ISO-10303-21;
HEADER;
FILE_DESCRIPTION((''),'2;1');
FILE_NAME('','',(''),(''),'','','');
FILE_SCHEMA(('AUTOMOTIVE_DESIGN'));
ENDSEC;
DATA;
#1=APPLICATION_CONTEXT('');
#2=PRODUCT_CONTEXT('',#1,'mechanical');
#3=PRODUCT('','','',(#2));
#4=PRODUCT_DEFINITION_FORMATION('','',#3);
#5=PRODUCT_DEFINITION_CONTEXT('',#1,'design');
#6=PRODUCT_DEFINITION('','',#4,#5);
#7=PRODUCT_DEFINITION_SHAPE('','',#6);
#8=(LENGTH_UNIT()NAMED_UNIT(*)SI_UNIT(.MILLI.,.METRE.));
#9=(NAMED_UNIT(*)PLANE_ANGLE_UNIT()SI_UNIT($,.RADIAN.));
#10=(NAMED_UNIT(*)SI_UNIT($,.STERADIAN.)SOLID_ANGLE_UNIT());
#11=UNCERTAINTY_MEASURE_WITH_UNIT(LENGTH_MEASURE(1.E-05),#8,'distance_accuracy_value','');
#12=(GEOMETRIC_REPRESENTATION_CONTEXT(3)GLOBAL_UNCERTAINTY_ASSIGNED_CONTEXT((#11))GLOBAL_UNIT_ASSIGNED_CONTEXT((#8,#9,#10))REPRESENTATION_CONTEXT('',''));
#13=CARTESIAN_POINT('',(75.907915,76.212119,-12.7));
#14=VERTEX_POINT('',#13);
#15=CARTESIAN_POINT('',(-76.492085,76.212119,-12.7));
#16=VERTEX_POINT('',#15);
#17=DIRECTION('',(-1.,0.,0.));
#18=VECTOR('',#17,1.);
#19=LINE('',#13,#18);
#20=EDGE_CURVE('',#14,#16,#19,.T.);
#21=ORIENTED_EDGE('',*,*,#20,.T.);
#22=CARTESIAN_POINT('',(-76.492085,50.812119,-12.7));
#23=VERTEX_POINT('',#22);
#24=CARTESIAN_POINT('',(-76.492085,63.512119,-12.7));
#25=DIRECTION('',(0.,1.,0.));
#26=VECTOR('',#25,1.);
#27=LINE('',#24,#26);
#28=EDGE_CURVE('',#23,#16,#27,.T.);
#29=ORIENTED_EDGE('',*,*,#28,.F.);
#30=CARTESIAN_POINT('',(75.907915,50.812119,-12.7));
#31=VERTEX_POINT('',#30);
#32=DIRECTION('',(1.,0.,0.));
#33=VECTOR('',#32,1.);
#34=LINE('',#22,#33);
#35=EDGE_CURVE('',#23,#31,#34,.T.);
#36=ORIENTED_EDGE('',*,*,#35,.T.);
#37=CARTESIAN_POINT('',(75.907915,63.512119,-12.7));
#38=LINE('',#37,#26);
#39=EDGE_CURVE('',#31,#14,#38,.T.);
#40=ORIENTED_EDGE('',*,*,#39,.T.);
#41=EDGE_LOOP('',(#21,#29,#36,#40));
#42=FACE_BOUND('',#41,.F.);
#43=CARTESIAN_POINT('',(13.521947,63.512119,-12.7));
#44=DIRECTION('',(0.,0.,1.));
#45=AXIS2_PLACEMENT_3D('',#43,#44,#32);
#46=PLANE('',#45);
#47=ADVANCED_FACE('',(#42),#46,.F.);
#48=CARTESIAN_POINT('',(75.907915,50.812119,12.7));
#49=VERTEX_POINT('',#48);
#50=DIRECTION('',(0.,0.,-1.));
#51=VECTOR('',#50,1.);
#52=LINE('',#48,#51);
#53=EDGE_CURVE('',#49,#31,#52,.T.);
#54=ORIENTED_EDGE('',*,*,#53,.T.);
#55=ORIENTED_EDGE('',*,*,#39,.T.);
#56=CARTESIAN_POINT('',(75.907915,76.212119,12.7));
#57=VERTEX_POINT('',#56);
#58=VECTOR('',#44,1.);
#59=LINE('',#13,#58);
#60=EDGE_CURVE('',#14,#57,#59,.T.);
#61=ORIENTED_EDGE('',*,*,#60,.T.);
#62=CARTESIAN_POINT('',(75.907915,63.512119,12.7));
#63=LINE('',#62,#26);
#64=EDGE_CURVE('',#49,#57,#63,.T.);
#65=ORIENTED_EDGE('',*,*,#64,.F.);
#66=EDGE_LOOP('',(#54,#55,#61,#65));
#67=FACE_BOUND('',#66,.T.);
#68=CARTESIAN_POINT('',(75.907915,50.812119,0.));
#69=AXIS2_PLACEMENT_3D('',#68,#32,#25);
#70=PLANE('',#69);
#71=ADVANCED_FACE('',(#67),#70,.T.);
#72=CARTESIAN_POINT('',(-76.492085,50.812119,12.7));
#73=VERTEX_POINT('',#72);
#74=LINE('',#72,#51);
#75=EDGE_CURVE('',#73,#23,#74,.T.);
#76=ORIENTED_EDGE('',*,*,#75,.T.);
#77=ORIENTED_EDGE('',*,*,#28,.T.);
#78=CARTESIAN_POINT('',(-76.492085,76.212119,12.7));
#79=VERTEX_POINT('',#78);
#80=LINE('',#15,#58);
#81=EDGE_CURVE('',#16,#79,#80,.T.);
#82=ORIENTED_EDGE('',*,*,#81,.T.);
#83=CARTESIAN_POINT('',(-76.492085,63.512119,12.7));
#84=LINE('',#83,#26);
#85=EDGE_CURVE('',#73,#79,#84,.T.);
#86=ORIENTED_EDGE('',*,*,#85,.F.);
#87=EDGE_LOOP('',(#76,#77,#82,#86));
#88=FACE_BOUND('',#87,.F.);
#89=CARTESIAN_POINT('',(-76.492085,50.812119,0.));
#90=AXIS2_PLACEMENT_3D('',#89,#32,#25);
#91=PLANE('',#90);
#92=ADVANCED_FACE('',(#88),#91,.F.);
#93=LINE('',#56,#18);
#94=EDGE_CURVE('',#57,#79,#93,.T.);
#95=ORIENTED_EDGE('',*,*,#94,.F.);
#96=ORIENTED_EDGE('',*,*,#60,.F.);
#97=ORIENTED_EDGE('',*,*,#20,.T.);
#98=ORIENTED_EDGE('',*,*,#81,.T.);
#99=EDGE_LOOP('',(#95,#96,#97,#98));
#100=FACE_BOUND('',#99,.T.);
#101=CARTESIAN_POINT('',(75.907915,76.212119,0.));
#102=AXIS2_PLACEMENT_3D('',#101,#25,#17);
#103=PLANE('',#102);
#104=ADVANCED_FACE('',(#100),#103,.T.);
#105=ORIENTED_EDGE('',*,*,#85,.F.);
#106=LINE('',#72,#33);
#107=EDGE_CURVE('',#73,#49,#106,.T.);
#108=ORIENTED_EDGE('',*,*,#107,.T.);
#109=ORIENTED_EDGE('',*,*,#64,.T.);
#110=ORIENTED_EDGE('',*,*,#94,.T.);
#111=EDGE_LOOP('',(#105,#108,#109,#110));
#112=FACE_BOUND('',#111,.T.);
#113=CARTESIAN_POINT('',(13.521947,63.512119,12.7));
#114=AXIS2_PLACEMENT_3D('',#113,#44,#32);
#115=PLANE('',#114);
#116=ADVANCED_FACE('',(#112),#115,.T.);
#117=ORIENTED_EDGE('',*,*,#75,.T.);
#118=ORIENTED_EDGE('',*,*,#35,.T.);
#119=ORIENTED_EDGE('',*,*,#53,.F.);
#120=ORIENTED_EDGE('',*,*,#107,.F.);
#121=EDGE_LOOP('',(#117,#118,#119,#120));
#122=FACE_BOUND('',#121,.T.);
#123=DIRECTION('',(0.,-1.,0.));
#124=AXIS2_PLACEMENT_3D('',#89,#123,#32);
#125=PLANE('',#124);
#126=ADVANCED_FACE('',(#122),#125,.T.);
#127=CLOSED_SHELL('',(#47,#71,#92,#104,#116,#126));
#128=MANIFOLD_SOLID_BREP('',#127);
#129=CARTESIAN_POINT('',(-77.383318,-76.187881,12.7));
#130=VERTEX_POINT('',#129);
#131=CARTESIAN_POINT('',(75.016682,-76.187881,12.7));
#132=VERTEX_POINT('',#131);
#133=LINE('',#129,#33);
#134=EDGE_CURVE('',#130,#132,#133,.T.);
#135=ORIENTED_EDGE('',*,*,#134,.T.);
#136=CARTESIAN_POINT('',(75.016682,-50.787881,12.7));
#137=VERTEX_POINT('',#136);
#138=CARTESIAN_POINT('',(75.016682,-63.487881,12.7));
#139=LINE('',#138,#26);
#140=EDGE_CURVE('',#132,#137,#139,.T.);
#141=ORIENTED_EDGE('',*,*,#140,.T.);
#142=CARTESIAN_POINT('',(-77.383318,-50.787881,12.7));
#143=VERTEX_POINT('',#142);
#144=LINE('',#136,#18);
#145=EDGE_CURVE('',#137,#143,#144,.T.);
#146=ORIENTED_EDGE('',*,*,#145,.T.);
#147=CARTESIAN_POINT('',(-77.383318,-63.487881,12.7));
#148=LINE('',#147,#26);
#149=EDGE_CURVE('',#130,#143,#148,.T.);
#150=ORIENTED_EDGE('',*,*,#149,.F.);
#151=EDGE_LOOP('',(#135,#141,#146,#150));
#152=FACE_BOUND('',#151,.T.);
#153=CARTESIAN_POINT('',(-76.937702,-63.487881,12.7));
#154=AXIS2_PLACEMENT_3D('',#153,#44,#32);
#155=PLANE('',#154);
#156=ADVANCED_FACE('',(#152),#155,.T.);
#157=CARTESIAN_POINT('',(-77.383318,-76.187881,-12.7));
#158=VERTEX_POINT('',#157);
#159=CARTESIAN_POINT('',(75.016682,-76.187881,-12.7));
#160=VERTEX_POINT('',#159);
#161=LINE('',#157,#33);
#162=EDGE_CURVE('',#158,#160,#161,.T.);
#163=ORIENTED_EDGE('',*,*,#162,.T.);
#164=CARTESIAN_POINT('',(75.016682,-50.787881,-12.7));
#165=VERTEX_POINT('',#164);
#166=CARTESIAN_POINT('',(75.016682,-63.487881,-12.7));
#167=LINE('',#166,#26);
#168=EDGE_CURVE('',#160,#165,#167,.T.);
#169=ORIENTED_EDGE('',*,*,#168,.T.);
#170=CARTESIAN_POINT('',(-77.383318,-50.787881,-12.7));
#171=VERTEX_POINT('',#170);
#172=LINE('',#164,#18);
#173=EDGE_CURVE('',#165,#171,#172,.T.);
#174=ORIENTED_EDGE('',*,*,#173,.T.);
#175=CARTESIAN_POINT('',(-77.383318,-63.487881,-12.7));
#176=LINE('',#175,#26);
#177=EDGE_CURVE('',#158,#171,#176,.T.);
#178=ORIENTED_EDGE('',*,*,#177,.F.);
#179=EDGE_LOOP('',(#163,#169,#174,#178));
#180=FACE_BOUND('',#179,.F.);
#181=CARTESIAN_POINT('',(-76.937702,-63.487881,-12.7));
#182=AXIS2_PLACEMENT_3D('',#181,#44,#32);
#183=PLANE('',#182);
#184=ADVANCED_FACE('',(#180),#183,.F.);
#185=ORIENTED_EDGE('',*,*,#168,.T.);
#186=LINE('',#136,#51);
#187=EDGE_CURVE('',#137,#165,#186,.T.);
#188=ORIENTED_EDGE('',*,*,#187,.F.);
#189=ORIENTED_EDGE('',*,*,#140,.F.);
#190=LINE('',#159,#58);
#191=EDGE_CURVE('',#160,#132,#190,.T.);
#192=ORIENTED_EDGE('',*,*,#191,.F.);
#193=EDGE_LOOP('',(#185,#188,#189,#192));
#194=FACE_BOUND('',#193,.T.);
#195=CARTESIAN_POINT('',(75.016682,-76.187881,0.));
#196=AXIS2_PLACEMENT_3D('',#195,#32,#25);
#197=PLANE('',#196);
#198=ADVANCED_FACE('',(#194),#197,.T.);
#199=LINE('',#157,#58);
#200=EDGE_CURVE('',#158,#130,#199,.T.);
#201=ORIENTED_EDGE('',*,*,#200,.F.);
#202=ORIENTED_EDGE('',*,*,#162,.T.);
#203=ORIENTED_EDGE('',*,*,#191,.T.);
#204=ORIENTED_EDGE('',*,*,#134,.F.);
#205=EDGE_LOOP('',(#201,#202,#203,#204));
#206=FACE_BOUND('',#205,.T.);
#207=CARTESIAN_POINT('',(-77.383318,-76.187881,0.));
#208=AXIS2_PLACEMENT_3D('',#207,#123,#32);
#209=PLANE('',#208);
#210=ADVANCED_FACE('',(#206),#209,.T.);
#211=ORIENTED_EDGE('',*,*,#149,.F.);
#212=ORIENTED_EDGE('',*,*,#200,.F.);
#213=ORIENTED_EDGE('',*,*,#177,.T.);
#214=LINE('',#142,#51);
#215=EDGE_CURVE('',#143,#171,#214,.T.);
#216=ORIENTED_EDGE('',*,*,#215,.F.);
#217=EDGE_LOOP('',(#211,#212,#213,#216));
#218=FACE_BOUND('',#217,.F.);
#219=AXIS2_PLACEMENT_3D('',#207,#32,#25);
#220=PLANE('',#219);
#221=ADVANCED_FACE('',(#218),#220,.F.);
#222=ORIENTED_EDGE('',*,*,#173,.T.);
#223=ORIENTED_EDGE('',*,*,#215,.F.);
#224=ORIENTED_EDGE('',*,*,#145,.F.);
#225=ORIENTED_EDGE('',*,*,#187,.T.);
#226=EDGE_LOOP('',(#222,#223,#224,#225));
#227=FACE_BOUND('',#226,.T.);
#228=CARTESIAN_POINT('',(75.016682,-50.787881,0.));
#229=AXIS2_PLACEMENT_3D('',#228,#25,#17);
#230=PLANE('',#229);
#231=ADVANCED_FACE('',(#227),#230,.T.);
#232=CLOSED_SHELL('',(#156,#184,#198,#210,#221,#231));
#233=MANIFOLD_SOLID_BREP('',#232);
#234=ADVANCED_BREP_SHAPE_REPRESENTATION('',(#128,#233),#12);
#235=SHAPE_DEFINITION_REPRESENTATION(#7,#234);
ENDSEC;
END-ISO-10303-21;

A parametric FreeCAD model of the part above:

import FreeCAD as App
import Part
import Sketcher
Q = App.Units.Quantity


def add_polygon(sketch, points):
    """Adds a closed chain of lines whose ends are joined by coincident constraints."""
    first, n = sketch.GeometryCount, len(points)
    for a, b in zip(points, points[1:] + points[:1]):
        sketch.addGeometry(Part.LineSegment(App.Vector(*a, 0), App.Vector(*b, 0)), False)
    for i in range(n):
        sketch.addConstraint(Sketcher.Constraint("Coincident", first + i, 2, first + (i + 1) % n, 1))

doc = App.newDocument("Part")
body = doc.addObject("PartDesign::Body", "Body")

sketch1 = body.newObject("Sketcher::SketchObject", "Sketch")
sketch1.AttachmentSupport = (doc.getObject("XY_Plane"), [""])
sketch1.MapMode = "FlatFace"
add_polygon(sketch1, [(76, 51), (76, 76), (-76, 76), (-76, 51)])
sketch1.addConstraint(Sketcher.Constraint("Vertical", 0))
sketch1.addConstraint(Sketcher.Constraint("Horizontal", 1))
sketch1.addConstraint(Sketcher.Constraint("Vertical", 2))
sketch1.addConstraint(Sketcher.Constraint("Horizontal", 3))
sketch1.addConstraint(Sketcher.Constraint("DistanceX", 1, 2, 1, 1, Q("6 in")))
sketch1.addConstraint(Sketcher.Constraint("DistanceY", 0, 1, 0, 2, Q("1 in")))
sketch1.addConstraint(Sketcher.Constraint("DistanceY", -1, 1, 0, 2, Q("76.212119 mm")))
sketch1.addConstraint(Sketcher.Constraint("DistanceX", -1, 1, 0, 2, Q("75.907915 mm")))
pad1 = body.newObject("PartDesign::Pad", "Pad")
pad1.Profile = sketch1
pad1.Length = Q("1 in")
pad1.Midplane = True
body2 = doc.addObject("PartDesign::Body", "Body001")

sketch2 = body2.newObject("Sketcher::SketchObject", "Sketch001")
sketch2.AttachmentSupport = (doc.getObject("XY_Plane001"), [""])
sketch2.MapMode = "FlatFace"
add_polygon(sketch2, [(-77, -51), (-77, -76), (75, -76), (75, -51)])
sketch2.addConstraint(Sketcher.Constraint("Vertical", 0))
sketch2.addConstraint(Sketcher.Constraint("Horizontal", 1))
sketch2.addConstraint(Sketcher.Constraint("Vertical", 2))
sketch2.addConstraint(Sketcher.Constraint("Horizontal", 3))
sketch2.addConstraint(Sketcher.Constraint("DistanceX", 1, 1, 1, 2, Q("6 in")))
sketch2.addConstraint(Sketcher.Constraint("DistanceY", 0, 2, 0, 1, Q("1 in")))
sketch2.addConstraint(Sketcher.Constraint("DistanceX", 0, 2, -1, 1, Q("77.383318 mm")))
sketch2.addConstraint(Sketcher.Constraint("DistanceY", 0, 2, -1, 1, Q("76.187881 mm")))
pad2 = body2.newObject("PartDesign::Pad", "Pad001")
pad2.Profile = sketch2
pad2.Length = Q("1 in")
pad2.Midplane = True

doc.recompute()
